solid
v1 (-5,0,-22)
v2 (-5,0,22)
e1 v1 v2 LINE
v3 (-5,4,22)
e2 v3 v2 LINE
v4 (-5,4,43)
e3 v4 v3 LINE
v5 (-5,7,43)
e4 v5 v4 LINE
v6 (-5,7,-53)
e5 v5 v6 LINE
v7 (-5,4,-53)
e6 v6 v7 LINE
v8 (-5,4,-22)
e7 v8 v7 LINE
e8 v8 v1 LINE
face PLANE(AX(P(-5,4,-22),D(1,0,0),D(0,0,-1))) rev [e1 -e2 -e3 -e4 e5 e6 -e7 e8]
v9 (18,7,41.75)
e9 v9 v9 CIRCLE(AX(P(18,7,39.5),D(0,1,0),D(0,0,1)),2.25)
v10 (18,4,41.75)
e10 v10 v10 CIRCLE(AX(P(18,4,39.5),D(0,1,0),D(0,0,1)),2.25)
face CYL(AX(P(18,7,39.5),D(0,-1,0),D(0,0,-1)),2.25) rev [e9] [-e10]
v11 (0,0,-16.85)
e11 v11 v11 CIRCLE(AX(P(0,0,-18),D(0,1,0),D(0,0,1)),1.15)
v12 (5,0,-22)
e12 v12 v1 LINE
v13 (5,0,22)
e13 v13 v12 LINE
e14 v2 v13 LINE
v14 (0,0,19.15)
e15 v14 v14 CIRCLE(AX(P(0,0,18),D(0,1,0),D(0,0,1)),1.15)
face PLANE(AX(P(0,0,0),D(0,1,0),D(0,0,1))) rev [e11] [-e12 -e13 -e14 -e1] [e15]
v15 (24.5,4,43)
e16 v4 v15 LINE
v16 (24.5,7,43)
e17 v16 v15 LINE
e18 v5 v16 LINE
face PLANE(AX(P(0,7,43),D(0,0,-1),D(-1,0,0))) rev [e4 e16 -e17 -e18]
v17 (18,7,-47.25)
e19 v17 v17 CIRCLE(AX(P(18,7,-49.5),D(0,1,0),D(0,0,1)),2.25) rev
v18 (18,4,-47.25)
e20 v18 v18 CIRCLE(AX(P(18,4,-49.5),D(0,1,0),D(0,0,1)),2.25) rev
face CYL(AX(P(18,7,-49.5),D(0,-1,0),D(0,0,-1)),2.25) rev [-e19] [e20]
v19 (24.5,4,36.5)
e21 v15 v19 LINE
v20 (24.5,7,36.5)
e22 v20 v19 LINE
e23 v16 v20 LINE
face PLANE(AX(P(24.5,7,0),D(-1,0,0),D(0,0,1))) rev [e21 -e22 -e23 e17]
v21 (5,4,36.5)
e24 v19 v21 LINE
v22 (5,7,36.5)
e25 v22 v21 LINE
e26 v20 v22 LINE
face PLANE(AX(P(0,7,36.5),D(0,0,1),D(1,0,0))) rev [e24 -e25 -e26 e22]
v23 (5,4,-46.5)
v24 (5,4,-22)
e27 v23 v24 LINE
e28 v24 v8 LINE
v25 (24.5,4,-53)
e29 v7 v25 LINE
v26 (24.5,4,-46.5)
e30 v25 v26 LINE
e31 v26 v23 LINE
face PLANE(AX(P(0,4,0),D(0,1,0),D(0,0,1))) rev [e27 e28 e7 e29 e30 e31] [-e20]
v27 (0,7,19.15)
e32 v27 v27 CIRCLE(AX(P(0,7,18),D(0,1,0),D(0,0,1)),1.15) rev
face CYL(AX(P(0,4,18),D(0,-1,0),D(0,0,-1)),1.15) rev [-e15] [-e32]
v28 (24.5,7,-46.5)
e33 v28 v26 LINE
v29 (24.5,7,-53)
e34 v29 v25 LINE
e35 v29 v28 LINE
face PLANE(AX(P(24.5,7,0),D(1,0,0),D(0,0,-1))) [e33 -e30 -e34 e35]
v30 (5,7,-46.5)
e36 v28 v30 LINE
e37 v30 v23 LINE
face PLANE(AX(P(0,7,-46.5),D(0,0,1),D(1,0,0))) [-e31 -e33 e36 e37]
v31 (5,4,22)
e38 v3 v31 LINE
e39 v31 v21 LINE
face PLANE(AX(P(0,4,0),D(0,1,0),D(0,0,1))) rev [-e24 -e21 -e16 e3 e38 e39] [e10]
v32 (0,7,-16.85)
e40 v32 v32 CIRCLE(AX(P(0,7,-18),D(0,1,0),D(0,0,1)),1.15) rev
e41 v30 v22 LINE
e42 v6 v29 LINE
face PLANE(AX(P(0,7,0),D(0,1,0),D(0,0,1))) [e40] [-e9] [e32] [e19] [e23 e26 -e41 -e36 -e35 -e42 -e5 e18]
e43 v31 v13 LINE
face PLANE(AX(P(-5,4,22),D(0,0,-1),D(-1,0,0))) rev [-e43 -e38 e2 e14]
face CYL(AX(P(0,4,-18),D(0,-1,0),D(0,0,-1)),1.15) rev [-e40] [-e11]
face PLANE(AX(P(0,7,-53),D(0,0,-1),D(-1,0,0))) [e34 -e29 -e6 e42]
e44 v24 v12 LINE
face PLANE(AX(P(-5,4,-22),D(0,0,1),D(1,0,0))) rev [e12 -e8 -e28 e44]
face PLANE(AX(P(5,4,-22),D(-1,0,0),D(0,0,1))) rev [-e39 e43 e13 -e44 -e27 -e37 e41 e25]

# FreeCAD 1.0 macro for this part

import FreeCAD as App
import Part
import Sketcher

V = App.Vector
Q = App.Units.Quantity

doc = App.newDocument("Part")
params = doc.addObject("Spreadsheet::Sheet", "Params")
for row, (alias, value) in enumerate([
    ("sketch1_diameter", "2.3 mm"),
    ("sketch1_width", "10 mm"),
    ("sketch1_height", "44 mm"),
    ("pad1_length", "4 mm"),
    ("sketch2_diameter", "4.5 mm"),
    ("sketch2_diameter2", "2.3 mm"),
    ("sketch2_height", "96 mm"),
    ("sketch2_height2", "83 mm"),
    ("sketch2_width", "29.5 mm"),
    ("pad2_length", "3 mm"),
], start=1):
    params.set(f"A{row}", alias)
    params.set(f"B{row}", "=" + value)
    params.setAlias(f"B{row}", alias)

body = doc.addObject("PartDesign::Body", "Body")

# Sketch on XZ plane
sketch1 = body.newObject("Sketcher::SketchObject", "Sketch")
sketch1.AttachmentSupport = (doc.getObject("XZ_Plane"), [""])
sketch1.MapMode = "FlatFace"
sketch1.addGeometry(Part.LineSegment(V(-5, -22, 0), V(-5, 22, 0)), False)
sketch1.addGeometry(Part.LineSegment(V(-5, 22, 0), V(5, 22, 0)), False)
sketch1.addGeometry(Part.LineSegment(V(5, 22, 0), V(5, -22, 0)), False)
sketch1.addGeometry(Part.LineSegment(V(5, -22, 0), V(-5, -22, 0)), False)
sketch1.addGeometry(Part.Circle(V(0, 18, 0), V(0, 0, 1), 1.1), False)
sketch1.addGeometry(Part.Circle(V(0, -18, 0), V(0, 0, 1), 1.1), False)
sketch1.addConstraint(Sketcher.Constraint("Coincident", 0, 2, 1, 1))
sketch1.addConstraint(Sketcher.Constraint("Coincident", 1, 2, 2, 1))
sketch1.addConstraint(Sketcher.Constraint("Coincident", 2, 2, 3, 1))
sketch1.addConstraint(Sketcher.Constraint("Coincident", 3, 2, 0, 1))
sketch1.addConstraint(Sketcher.Constraint("Vertical", 0))
sketch1.addConstraint(Sketcher.Constraint("Horizontal", 1))
sketch1.addConstraint(Sketcher.Constraint("Vertical", 2))
sketch1.addConstraint(Sketcher.Constraint("Horizontal", 3))
sketch1.addConstraint(Sketcher.Constraint("Equal", 4, 5))
sketch1.addConstraint(Sketcher.Constraint("Symmetric", 4, 3, 5, 3, -1, 1))
sketch1.addConstraint(Sketcher.Constraint("Symmetric", 0, 2, 2, 2, -1, 1))
sketch1.addConstraint(Sketcher.Constraint("PointOnObject", 4, 3, -2))
sketch1.addConstraint(Sketcher.Constraint("Diameter", 4, Q("2.3 mm")))
sketch1.addConstraint(Sketcher.Constraint("DistanceX", 1, 1, 1, 2, Q("10 mm")))
sketch1.addConstraint(Sketcher.Constraint("DistanceY", 0, 1, 0, 2, Q("44 mm")))
sketch1.addConstraint(Sketcher.Constraint("DistanceY", -1, 1, 4, 3, Q("18 mm")))
sketch1.setExpression("Constraints[12]", "Params.sketch1_diameter")
sketch1.setExpression("Constraints[13]", "Params.sketch1_width")
sketch1.setExpression("Constraints[14]", "Params.sketch1_height")
pad1 = body.newObject("PartDesign::Pad", "Pad")
pad1.Profile = sketch1
pad1.setExpression("Length", "Params.pad1_length")
pad1.Reversed = True

# Sketch on XZ plane
sketch2 = body.newObject("Sketcher::SketchObject", "Sketch001")
sketch2.AttachmentSupport = (doc.getObject("XZ_Plane"), [""])
sketch2.MapMode = "FlatFace"
sketch2.AttachmentOffset = App.Placement(V(0, 0, -4), App.Rotation())
sketch2.addGeometry(Part.LineSegment(V(-5, -53, 0), V(-5, 43, 0)), False)
sketch2.addGeometry(Part.LineSegment(V(-5, 43, 0), V(24.5, 43, 0)), False)
sketch2.addGeometry(Part.LineSegment(V(24.5, 43, 0), V(24.5, 36.5, 0)), False)
sketch2.addGeometry(Part.LineSegment(V(24.5, 36.5, 0), V(5, 36.5, 0)), False)
sketch2.addGeometry(Part.LineSegment(V(5, 36.5, 0), V(5, -46.5, 0)), False)
sketch2.addGeometry(Part.LineSegment(V(5, -46.5, 0), V(24.5, -46.5, 0)), False)
sketch2.addGeometry(Part.LineSegment(V(24.5, -46.5, 0), V(24.5, -53, 0)), False)
sketch2.addGeometry(Part.LineSegment(V(24.5, -53, 0), V(-5, -53, 0)), False)
sketch2.addGeometry(Part.Circle(V(18, -49.5, 0), V(0, 0, 1), 2.2), False)
sketch2.addGeometry(Part.Circle(V(0, -18, 0), V(0, 0, 1), 1.1), False)
sketch2.addGeometry(Part.Circle(V(0, 18, 0), V(0, 0, 1), 1.1), False)
sketch2.addGeometry(Part.Circle(V(18, 39.5, 0), V(0, 0, 1), 2.2), False)
sketch2.addConstraint(Sketcher.Constraint("Coincident", 0, 2, 1, 1))
sketch2.addConstraint(Sketcher.Constraint("Coincident", 1, 2, 2, 1))
sketch2.addConstraint(Sketcher.Constraint("Coincident", 2, 2, 3, 1))
sketch2.addConstraint(Sketcher.Constraint("Coincident", 3, 2, 4, 1))
sketch2.addConstraint(Sketcher.Constraint("Coincident", 4, 2, 5, 1))
sketch2.addConstraint(Sketcher.Constraint("Coincident", 5, 2, 6, 1))
sketch2.addConstraint(Sketcher.Constraint("Coincident", 6, 2, 7, 1))
sketch2.addConstraint(Sketcher.Constraint("Coincident", 7, 2, 0, 1))
sketch2.addConstraint(Sketcher.Constraint("Vertical", 0))
sketch2.addConstraint(Sketcher.Constraint("Horizontal", 1))
sketch2.addConstraint(Sketcher.Constraint("Vertical", 2))
sketch2.addConstraint(Sketcher.Constraint("Horizontal", 3))
sketch2.addConstraint(Sketcher.Constraint("Vertical", 4))
sketch2.addConstraint(Sketcher.Constraint("Horizontal", 5))
sketch2.addConstraint(Sketcher.Constraint("Vertical", 6))
sketch2.addConstraint(Sketcher.Constraint("Horizontal", 7))
sketch2.addConstraint(Sketcher.Constraint("Equal", 9, 10))
sketch2.addConstraint(Sketcher.Constraint("Equal", 8, 11))
sketch2.addConstraint(Sketcher.Constraint("Symmetric", 9, 3, 10, 3, -1, 1))
sketch2.addConstraint(Sketcher.Constraint("PointOnObject", 9, 3, -2))
sketch2.addConstraint(Sketcher.Constraint("Vertical", 8, 3, 11, 3))
sketch2.addConstraint(Sketcher.Constraint("Vertical", 2, 2, 5, 2))
sketch2.addConstraint(Sketcher.Constraint("Equal", 2, 6))
sketch2.addConstraint(Sketcher.Constraint("Diameter", 8, Q("4.5 mm")))
sketch2.addConstraint(Sketcher.Constraint("Diameter", 9, Q("2.3 mm")))
sketch2.addConstraint(Sketcher.Constraint("DistanceY", 0, 1, 0, 2, Q("96 mm")))
sketch2.addConstraint(Sketcher.Constraint("DistanceY", 4, 2, 4, 1, Q("83 mm")))
sketch2.addConstraint(Sketcher.Constraint("DistanceX", 1, 1, 1, 2, Q("29.5 mm")))
sketch2.addConstraint(Sketcher.Constraint("DistanceX", 3, 2, 3, 1, Q("19.5 mm")))
sketch2.addConstraint(Sketcher.Constraint("DistanceX", -1, 1, 8, 3, Q("18 mm")))
sketch2.addConstraint(Sketcher.Constraint("DistanceY", 9, 3, -1, 1, Q("18 mm")))
sketch2.addConstraint(Sketcher.Constraint("DistanceX", 0, 2, -1, 1, Q("5 mm")))
sketch2.addConstraint(Sketcher.Constraint("DistanceY", -1, 1, 0, 2, Q("43 mm")))
sketch2.addConstraint(Sketcher.Constraint("DistanceY", 8, 3, 11, 3, Q("89 mm")))
sketch2.addConstraint(Sketcher.Constraint("DistanceY", 2, 2, 11, 3, Q("3 mm")))
sketch2.setExpression("Constraints[23]", "Params.sketch2_diameter")
sketch2.setExpression("Constraints[24]", "Params.sketch2_diameter2")
sketch2.setExpression("Constraints[25]", "Params.sketch2_height")
sketch2.setExpression("Constraints[26]", "Params.sketch2_height2")
sketch2.setExpression("Constraints[27]", "Params.sketch2_width")
pad2 = body.newObject("PartDesign::Pad", "Pad001")
pad2.Profile = sketch2
pad2.setExpression("Length", "Params.pad2_length")
pad2.Reversed = True

doc.recompute()
